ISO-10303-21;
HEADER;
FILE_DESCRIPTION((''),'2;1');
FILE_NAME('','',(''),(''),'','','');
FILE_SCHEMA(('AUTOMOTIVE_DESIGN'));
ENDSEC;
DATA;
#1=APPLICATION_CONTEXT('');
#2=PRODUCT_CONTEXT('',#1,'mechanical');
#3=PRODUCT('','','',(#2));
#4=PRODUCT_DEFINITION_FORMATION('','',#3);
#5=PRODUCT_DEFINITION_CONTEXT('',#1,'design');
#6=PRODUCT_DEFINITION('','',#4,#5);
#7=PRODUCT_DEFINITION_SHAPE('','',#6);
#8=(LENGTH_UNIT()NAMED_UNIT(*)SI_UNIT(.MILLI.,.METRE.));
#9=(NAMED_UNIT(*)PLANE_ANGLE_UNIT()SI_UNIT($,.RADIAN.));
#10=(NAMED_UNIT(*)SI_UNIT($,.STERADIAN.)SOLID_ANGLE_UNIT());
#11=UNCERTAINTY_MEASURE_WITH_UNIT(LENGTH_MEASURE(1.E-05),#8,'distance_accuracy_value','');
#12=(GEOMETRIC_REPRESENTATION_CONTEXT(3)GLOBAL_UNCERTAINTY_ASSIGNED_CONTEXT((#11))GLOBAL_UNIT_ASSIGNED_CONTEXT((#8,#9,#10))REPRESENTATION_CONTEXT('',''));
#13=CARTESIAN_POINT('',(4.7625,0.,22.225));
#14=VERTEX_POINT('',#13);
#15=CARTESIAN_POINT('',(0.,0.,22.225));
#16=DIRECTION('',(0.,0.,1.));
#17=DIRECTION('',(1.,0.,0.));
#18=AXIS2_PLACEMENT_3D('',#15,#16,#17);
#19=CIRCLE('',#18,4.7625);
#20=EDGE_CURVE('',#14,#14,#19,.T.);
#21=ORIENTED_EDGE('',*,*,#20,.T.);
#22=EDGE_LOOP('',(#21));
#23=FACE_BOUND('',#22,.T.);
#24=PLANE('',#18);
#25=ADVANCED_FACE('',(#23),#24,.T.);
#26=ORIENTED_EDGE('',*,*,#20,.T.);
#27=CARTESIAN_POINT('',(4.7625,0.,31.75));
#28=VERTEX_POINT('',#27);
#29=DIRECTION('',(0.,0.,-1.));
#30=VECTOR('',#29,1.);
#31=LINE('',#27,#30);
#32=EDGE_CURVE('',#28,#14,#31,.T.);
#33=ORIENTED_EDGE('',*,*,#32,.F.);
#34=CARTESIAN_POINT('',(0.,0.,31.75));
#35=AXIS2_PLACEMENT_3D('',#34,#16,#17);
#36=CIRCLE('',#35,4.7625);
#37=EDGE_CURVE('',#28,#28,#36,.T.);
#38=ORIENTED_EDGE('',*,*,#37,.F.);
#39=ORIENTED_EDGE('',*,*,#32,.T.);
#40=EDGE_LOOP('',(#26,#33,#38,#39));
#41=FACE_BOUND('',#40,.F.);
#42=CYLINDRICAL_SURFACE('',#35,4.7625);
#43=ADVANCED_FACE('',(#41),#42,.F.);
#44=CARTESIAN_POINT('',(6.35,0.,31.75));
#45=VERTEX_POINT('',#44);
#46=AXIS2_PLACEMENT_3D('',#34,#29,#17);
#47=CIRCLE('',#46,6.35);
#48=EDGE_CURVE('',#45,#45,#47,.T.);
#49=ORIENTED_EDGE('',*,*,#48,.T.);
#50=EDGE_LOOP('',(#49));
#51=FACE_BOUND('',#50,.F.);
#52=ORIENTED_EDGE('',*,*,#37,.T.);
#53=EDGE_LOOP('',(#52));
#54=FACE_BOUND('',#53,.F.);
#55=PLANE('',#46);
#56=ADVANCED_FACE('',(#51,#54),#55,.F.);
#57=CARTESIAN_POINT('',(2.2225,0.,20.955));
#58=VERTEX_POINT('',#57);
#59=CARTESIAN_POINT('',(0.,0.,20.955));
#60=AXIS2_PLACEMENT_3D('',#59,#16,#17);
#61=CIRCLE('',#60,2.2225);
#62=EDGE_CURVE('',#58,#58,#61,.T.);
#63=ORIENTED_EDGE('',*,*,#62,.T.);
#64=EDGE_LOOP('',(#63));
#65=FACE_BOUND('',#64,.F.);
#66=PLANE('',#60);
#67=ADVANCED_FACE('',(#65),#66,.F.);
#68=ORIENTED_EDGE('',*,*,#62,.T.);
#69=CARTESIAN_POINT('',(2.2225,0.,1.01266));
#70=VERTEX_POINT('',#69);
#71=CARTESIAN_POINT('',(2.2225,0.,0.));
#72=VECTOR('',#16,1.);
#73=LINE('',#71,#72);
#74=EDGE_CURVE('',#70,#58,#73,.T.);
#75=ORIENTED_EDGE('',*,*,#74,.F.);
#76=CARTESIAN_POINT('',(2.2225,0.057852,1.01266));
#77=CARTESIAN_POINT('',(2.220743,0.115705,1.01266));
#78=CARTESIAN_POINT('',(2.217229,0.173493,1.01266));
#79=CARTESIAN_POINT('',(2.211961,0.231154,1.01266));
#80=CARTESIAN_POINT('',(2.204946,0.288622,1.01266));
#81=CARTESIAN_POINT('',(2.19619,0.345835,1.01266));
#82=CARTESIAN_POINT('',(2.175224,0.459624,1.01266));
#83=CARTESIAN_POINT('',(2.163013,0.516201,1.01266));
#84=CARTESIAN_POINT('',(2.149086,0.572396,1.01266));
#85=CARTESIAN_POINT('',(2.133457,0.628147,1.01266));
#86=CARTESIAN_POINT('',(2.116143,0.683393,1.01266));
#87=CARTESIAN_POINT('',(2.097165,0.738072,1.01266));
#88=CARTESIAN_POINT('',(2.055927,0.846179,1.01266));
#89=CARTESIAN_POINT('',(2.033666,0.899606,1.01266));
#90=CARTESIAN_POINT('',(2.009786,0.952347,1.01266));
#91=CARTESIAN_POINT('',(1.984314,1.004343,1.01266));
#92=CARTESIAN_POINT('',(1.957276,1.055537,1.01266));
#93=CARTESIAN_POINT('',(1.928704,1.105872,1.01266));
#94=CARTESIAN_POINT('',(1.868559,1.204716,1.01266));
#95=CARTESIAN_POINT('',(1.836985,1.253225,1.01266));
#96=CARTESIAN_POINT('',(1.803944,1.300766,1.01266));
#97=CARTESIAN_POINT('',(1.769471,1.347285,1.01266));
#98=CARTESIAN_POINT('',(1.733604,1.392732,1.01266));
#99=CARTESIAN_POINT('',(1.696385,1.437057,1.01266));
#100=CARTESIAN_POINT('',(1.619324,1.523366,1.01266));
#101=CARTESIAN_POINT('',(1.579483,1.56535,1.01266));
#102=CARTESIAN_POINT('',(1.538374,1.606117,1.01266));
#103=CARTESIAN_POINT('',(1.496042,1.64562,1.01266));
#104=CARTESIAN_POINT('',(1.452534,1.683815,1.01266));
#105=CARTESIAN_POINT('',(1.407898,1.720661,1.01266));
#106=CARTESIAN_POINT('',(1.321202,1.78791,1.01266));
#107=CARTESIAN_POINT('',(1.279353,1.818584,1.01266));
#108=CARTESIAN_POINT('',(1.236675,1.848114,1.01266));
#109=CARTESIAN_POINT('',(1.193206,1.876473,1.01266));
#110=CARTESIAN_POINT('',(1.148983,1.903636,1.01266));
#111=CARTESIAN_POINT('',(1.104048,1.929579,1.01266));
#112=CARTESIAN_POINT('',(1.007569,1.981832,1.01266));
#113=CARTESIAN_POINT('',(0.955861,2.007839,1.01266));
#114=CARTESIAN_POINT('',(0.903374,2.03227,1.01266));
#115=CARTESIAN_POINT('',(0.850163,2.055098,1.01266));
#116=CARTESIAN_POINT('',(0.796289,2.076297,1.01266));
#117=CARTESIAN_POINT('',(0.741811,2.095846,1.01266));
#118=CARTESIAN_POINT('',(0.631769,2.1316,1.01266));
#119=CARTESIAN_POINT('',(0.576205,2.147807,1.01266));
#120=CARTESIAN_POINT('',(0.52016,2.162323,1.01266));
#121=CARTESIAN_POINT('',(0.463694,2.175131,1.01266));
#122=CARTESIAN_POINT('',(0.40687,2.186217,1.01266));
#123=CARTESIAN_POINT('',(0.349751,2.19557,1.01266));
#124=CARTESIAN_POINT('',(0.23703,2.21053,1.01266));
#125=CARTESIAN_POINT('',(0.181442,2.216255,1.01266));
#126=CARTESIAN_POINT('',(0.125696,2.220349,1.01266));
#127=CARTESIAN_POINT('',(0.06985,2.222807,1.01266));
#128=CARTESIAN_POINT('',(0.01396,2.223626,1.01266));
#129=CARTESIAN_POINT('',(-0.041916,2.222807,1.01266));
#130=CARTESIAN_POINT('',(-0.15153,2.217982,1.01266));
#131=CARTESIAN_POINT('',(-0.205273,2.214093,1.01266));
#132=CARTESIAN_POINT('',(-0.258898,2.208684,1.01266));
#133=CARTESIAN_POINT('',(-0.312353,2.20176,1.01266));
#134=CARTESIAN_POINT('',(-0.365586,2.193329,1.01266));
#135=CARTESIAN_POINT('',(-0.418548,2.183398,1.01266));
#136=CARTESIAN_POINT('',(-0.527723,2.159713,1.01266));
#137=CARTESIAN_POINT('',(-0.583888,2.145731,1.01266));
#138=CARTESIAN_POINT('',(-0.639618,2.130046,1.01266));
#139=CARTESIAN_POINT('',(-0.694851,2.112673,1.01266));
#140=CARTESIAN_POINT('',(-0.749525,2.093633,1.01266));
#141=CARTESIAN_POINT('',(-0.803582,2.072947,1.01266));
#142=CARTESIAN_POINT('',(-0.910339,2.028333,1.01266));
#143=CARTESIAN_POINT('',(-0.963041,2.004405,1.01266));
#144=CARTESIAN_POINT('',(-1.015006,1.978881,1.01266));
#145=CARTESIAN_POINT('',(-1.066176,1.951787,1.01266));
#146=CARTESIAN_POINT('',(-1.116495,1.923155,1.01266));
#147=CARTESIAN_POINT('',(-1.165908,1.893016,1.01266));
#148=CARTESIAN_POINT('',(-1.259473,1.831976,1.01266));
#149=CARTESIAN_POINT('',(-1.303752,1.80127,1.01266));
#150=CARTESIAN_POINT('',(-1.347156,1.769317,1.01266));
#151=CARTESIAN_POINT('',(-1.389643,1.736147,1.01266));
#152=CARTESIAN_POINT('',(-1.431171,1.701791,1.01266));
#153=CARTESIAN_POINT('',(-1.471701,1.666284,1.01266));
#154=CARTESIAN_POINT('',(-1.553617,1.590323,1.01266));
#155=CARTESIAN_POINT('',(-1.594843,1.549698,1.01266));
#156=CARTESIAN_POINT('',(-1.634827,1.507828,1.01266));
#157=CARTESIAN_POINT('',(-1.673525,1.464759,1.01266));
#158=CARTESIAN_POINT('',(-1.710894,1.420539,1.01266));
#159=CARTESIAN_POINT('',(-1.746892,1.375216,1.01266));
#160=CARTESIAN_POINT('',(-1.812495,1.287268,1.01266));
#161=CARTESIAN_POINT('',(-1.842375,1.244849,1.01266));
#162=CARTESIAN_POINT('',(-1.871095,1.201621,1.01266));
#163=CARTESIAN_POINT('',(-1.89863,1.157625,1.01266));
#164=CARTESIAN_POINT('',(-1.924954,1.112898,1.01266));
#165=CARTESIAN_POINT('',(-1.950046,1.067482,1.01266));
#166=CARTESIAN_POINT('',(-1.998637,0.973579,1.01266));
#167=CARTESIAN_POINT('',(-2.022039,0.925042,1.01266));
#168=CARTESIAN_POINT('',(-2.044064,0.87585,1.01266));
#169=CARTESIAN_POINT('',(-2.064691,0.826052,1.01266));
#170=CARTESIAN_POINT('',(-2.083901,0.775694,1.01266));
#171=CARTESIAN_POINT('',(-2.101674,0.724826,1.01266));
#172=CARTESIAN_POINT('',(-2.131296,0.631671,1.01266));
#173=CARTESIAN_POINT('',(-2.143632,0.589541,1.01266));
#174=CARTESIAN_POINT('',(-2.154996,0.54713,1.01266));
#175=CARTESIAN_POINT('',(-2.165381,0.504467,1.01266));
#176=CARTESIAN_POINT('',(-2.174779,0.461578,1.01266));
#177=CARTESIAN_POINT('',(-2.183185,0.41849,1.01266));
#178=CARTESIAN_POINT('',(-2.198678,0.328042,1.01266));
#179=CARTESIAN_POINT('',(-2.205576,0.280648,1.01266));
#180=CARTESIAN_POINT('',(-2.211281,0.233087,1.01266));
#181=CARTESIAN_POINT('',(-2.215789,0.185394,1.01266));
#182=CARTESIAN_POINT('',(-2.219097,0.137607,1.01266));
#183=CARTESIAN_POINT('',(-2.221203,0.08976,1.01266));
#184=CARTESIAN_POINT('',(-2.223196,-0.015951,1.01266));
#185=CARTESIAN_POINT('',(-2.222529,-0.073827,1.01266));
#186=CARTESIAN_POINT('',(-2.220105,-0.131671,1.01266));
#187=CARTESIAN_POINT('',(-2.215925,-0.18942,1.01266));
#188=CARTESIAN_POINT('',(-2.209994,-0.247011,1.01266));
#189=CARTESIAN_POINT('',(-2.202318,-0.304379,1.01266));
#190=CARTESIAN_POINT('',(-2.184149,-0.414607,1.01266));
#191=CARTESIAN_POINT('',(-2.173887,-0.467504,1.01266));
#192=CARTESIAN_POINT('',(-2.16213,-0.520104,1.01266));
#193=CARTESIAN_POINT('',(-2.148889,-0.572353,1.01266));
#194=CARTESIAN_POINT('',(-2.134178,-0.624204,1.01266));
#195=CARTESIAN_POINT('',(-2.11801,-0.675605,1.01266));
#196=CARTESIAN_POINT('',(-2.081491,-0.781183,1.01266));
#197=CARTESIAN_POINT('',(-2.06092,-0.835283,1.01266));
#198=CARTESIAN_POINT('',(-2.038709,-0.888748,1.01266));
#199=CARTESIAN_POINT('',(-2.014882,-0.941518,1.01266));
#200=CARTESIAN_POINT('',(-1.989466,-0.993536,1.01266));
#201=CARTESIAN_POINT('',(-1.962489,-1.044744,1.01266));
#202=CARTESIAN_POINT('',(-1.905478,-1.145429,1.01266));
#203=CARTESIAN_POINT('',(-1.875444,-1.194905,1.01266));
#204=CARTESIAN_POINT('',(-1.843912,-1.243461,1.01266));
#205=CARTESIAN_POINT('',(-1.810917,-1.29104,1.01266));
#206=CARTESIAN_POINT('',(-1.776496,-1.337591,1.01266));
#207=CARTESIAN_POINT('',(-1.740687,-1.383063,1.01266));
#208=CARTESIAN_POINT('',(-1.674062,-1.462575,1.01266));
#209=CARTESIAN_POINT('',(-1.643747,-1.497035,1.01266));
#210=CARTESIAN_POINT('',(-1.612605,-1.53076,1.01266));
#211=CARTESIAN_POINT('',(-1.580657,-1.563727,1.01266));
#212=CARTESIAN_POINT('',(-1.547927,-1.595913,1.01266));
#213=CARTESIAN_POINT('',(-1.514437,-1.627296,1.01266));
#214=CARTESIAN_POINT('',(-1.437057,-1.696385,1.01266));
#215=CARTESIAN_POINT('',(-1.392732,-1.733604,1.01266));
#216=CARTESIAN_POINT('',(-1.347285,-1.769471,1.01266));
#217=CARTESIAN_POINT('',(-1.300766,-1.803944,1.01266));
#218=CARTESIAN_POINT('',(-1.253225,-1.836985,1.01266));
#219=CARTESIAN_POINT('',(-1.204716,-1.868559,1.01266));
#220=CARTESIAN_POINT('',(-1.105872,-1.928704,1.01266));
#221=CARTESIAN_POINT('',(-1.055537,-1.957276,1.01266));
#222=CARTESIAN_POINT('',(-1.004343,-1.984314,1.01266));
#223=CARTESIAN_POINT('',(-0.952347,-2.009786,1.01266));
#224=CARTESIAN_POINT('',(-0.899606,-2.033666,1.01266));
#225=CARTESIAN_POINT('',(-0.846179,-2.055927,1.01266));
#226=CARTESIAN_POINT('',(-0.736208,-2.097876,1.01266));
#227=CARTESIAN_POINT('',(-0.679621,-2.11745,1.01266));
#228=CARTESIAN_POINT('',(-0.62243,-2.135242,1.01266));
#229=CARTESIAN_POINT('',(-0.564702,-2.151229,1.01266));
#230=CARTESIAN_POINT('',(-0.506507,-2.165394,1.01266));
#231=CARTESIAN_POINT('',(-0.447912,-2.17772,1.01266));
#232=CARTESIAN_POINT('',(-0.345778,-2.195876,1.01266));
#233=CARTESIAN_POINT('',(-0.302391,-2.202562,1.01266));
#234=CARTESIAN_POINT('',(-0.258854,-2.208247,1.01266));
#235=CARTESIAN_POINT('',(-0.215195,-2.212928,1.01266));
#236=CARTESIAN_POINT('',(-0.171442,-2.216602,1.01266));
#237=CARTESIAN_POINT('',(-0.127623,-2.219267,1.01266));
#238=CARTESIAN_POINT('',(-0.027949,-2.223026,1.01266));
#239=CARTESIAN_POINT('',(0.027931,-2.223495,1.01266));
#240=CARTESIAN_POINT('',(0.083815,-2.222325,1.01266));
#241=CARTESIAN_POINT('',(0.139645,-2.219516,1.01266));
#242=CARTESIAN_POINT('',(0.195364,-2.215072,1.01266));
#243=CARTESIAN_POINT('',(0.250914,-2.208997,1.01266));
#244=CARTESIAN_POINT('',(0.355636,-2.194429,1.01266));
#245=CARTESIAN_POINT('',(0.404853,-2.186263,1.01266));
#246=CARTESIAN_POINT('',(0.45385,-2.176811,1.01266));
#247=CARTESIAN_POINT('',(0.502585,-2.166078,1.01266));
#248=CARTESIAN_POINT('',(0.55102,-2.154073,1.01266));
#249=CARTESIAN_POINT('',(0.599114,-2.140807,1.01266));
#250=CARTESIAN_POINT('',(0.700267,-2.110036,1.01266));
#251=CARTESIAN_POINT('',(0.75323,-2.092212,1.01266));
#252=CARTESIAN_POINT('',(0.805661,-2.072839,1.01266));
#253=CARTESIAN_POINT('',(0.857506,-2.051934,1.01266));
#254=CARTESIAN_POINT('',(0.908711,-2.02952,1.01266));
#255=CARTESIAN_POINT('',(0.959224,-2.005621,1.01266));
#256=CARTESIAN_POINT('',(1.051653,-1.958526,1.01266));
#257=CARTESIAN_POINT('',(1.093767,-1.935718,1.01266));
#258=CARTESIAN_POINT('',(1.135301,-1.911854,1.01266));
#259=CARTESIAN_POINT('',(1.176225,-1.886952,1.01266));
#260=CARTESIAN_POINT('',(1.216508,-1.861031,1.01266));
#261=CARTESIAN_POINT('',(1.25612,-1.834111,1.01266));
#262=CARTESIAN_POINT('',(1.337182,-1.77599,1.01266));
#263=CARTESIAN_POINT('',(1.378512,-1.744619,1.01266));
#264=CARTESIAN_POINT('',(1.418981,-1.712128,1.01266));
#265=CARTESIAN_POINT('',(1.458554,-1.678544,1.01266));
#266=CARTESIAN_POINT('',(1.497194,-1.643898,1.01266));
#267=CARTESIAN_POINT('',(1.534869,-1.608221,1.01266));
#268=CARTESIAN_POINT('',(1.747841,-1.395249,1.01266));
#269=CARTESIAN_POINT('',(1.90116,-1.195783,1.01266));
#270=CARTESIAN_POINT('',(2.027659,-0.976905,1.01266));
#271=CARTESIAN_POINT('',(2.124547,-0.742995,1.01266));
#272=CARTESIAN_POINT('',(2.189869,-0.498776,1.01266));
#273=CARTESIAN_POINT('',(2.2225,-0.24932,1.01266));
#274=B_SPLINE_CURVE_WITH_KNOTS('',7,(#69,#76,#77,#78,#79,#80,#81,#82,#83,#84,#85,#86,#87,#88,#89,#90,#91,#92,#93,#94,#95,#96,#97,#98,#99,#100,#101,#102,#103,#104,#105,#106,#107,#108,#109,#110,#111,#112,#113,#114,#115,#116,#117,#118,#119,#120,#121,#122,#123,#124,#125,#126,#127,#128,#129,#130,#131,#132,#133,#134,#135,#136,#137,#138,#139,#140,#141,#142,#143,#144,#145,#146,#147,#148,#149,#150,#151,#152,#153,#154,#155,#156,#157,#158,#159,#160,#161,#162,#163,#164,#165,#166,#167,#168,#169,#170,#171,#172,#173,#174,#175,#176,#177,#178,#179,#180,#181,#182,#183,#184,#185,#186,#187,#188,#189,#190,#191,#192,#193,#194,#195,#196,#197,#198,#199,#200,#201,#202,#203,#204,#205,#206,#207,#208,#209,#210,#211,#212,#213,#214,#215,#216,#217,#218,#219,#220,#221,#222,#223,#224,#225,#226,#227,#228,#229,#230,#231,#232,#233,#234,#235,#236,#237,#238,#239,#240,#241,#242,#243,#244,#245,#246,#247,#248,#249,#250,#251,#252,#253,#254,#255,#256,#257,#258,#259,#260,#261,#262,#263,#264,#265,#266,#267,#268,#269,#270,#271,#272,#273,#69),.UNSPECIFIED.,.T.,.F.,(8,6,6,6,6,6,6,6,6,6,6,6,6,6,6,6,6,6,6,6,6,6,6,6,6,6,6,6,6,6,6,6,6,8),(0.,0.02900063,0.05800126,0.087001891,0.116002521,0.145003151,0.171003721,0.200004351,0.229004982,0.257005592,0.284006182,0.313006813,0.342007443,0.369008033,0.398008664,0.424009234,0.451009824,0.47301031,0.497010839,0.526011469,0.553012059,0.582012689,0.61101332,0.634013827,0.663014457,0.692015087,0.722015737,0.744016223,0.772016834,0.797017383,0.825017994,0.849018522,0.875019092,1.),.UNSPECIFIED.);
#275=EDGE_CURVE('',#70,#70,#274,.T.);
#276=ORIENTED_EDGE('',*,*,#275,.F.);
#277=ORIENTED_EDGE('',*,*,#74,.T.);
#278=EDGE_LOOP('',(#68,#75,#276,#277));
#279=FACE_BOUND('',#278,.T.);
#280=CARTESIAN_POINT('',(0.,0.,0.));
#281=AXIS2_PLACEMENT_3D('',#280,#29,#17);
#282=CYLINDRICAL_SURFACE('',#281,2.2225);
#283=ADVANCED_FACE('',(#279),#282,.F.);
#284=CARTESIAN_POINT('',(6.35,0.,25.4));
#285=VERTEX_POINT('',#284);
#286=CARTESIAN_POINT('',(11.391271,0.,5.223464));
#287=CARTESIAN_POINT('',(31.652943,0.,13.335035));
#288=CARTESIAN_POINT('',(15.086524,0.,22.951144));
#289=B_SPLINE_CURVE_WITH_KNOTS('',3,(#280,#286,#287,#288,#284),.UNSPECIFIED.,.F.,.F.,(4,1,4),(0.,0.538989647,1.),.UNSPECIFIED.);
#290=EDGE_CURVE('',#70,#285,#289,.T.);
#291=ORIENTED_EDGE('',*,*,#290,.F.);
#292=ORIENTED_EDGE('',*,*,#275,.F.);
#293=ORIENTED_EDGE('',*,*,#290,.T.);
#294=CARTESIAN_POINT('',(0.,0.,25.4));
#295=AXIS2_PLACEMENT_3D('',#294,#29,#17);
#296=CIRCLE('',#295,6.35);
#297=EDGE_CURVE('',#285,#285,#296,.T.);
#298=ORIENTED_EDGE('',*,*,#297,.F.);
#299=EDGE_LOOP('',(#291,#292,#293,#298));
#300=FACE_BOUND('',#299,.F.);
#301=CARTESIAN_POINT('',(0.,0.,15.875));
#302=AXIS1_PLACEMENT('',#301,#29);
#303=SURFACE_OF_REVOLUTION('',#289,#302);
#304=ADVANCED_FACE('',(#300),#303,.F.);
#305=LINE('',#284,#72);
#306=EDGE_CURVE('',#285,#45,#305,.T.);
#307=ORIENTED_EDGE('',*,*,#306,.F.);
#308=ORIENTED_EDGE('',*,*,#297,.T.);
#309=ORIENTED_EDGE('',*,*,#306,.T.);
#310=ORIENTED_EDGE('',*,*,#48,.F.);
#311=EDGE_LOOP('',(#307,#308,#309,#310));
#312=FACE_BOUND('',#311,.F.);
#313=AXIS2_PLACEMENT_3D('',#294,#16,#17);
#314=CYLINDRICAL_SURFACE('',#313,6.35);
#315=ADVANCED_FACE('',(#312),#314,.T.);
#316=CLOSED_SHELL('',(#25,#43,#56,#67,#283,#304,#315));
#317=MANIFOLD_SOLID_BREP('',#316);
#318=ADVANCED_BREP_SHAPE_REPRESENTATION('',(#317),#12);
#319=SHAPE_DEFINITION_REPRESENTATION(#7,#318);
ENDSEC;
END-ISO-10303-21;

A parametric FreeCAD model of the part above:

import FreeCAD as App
import Part
import Sketcher
from FreeCAD import Vector
Q = App.Units.Quantity

doc = App.newDocument("Part")
params = doc.addObject("Spreadsheet::Sheet", "Params")
for row, (alias, value) in enumerate([
    ("sketch1_height", "1.25 in"),
    ("revolution_angle", "360 deg"),
    ("sketch2_diameter", "0.375 in"),
    ("pocket1_length", "0.375 in"),
    ("sketch3_diameter", "0.175 in"),
    ("pocket2_length", "0.825 in"),
], start=1):
    params.set(f"A{row}", alias)
    params.set(f"B{row}", "=" + value)
    params.setAlias(f"B{row}", alias)

body = doc.addObject("PartDesign::Body", "Body")

# Sketch on XZ plane
sketch1 = body.newObject("Sketcher::SketchObject", "Sketch")
sketch1.AttachmentSupport = (doc.getObject("XZ_Plane"), [""])
sketch1.MapMode = "FlatFace"
sketch1.addGeometry(Part.LineSegment(Vector(0, 31.75, 0), Vector(0, 0, 0)), False)
sketch1.addGeometry(Part.BSplineCurve([Vector(0, 0, 0), Vector(11.391271, 5.223464, 0), Vector(31.652943, 13.335035, 0), Vector(15.086524, 22.951144, 0), Vector(6.35, 25.4, 0)], [4, 1, 4], [0, 0.538989647, 1], False, 3, [1, 1, 1, 1, 1], False), False)
sketch1.addGeometry(Part.LineSegment(Vector(6.35, 25.4, 0), Vector(6.35, 31.75, 0)), False)
sketch1.addGeometry(Part.LineSegment(Vector(6.35, 31.75, 0), Vector(0, 31.75, 0)), False)
sketch1.addConstraint(Sketcher.Constraint("Block", 1))
sketch1.addConstraint(Sketcher.Constraint("Coincident", 0, 2, 1, 1))
sketch1.addConstraint(Sketcher.Constraint("Coincident", 1, 2, 2, 1))
sketch1.addConstraint(Sketcher.Constraint("Coincident", 2, 2, 3, 1))
sketch1.addConstraint(Sketcher.Constraint("Coincident", 3, 2, 0, 1))
sketch1.addConstraint(Sketcher.Constraint("Vertical", 0))
sketch1.addConstraint(Sketcher.Constraint("Vertical", 2))
sketch1.addConstraint(Sketcher.Constraint("Horizontal", 3))
sketch1.addConstraint(Sketcher.Constraint("DistanceY", 0, 2, 0, 1, Q("1.25 in")))
sketch1.setExpression("Constraints[8]", "Params.sketch1_height")
revolution = body.newObject("PartDesign::Revolution", "Revolution")
revolution.Profile = sketch1
revolution.ReferenceAxis = (sketch1, ["V_Axis"])
revolution.setExpression("Angle", "Params.revolution_angle")

# Sketch on XY plane
sketch2 = body.newObject("Sketcher::SketchObject", "Sketch001")
sketch2.AttachmentSupport = (doc.getObject("XY_Plane"), [""])
sketch2.MapMode = "FlatFace"
sketch2.AttachmentOffset = App.Placement(Vector(0, 0, 1.25 * 25.4), App.Rotation())
sketch2.addGeometry(Part.Circle(Vector(0, 0, 0), Vector(0, 0, 1), 4.8), False)
sketch2.addConstraint(Sketcher.Constraint("Coincident", 0, 3, -1, 1))
sketch2.addConstraint(Sketcher.Constraint("Diameter", 0, Q("0.375 in")))
sketch2.setExpression("Constraints[1]", "Params.sketch2_diameter")
pocket1 = body.newObject("PartDesign::Pocket", "Pocket")
pocket1.Profile = sketch2
pocket1.setExpression("Length", "Params.pocket1_length")

# Sketch on XY plane
sketch3 = body.newObject("Sketcher::SketchObject", "Sketch002")
sketch3.AttachmentSupport = (doc.getObject("XY_Plane"), [""])
sketch3.MapMode = "FlatFace"
sketch3.addGeometry(Part.Circle(Vector(0, 0, 0), Vector(0, 0, 1), 2.2), False)
sketch3.addConstraint(Sketcher.Constraint("Coincident", 0, 3, -1, 1))
sketch3.addConstraint(Sketcher.Constraint("Diameter", 0, Q("0.175 in")))
sketch3.setExpression("Constraints[1]", "Params.sketch3_diameter")
pocket2 = body.newObject("PartDesign::Pocket", "Pocket001")
pocket2.Profile = sketch3
pocket2.setExpression("Length", "Params.pocket2_length")
pocket2.Reversed = True

doc.recompute()
